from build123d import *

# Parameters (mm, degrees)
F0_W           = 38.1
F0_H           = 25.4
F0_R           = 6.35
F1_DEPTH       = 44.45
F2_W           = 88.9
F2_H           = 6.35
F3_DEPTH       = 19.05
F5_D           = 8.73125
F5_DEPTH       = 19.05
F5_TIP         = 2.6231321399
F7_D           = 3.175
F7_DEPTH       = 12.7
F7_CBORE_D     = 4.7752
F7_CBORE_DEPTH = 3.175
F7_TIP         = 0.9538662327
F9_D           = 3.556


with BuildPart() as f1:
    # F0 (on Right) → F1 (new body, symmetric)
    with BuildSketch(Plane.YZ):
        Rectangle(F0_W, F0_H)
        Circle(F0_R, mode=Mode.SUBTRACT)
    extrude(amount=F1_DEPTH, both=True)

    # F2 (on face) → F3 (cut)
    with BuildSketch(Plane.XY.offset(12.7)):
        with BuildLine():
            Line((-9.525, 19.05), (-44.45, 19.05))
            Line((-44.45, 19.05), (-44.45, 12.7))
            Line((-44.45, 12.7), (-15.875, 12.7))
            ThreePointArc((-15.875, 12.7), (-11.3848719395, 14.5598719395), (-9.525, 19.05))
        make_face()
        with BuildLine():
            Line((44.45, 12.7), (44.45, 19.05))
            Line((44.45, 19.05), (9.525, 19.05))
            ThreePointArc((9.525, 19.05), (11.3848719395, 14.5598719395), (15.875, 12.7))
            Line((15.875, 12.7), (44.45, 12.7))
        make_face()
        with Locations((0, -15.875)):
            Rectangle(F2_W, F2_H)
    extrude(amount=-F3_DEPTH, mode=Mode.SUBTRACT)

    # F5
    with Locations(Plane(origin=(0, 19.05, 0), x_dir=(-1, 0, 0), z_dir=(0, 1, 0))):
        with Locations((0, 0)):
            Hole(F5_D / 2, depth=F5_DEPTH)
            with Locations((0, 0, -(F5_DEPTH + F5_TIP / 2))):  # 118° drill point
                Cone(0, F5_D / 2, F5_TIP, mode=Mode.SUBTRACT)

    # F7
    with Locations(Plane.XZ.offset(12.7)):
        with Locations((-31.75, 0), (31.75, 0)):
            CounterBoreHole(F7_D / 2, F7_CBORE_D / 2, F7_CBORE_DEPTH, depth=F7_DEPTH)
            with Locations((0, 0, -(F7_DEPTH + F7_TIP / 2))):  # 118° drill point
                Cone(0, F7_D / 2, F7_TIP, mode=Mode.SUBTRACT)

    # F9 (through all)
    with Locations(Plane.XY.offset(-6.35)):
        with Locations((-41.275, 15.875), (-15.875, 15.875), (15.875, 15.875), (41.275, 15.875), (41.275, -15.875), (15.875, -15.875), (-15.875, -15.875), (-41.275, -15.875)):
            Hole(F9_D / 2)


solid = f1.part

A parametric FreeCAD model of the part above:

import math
import FreeCAD as App
import Part
import Sketcher
from FreeCAD import Vector
Q = App.Units.Quantity


def add_polygon(sketch, points):
    """Adds a closed chain of lines whose ends are joined by coincident constraints."""
    first, n = sketch.GeometryCount, len(points)
    for a, b in zip(points, points[1:] + points[:1]):
        sketch.addGeometry(Part.LineSegment(App.Vector(*a, 0), App.Vector(*b, 0)), False)
    for i in range(n):
        sketch.addConstraint(Sketcher.Constraint("Coincident", first + i, 2, first + (i + 1) % n, 1))

doc = App.newDocument("Part")
body = doc.addObject("PartDesign::Body", "Body")

# Sketch on YZ plane
sketch1 = doc.addObject("Sketcher::SketchObject", "Sketch")
body.addObject(sketch1)
sketch1.AttachmentSupport = (doc.YZ_Plane, [""])
sketch1.MapMode = "FlatFace"
add_polygon(sketch1, [(-19.05, 12.7), (-19.05, -12.7), (19.05, -12.7), (19.05, 12.7)])  # lines 0-3
sketch1.addGeometry(Part.Circle(Vector(0, 0, 0), Vector(0, 0, 1), 6.35), False)  # 4
sketch1.addConstraint(Sketcher.Constraint("Vertical", 0))
sketch1.addConstraint(Sketcher.Constraint("Horizontal", 1))
sketch1.addConstraint(Sketcher.Constraint("Vertical", 2))
sketch1.addConstraint(Sketcher.Constraint("Horizontal", 3))
sketch1.addConstraint(Sketcher.Constraint("Coincident", 4, 3, -1, 1))
sketch1.addConstraint(Sketcher.Constraint("Symmetric", 0, 2, 2, 2, -1, 1))
sketch1.addConstraint(Sketcher.Constraint("Diameter", 4, Q("0.5 in")))
sketch1.addConstraint(Sketcher.Constraint("DistanceY", 0, 2, 0, 1, Q("1 in")))
sketch1.addConstraint(Sketcher.Constraint("DistanceX", 1, 1, 1, 2, Q("1.5 in")))
pad1 = doc.addObject("PartDesign::Pad", "Pad")
body.addObject(pad1)
pad1.Profile = sketch1
pad1.Length = Q("3.5 in")
pad1.Midplane = True

# Sketch on XY plane
sketch2 = doc.addObject("Sketcher::SketchObject", "Sketch001")
body.addObject(sketch2)
sketch2.AttachmentSupport = (doc.XY_Plane, [""])
sketch2.MapMode = "FlatFace"
sketch2.AttachmentOffset = App.Placement(Vector(0, 0, 0.5 * 25.4), App.Rotation())
sketch2.addGeometry(Part.LineSegment(Vector(-9.525, 19.05, 0), Vector(-44.45, 19.05, 0)), False)  # 0
sketch2.addGeometry(Part.LineSegment(Vector(-44.45, 19.05, 0), Vector(-44.45, 12.7, 0)), False)  # 1
sketch2.addGeometry(Part.LineSegment(Vector(-44.45, 12.7, 0), Vector(-15.875, 12.7, 0)), False)  # 2
sketch2.addGeometry(Part.ArcOfCircle(Part.Circle(Vector(-15.875, 19.05, 0), Vector(0, 0, 1), 6.35), math.radians(-90), math.radians(0)), False)  # 3
sketch2.addGeometry(Part.LineSegment(Vector(44.45, 12.7, 0), Vector(44.45, 19.05, 0)), False)  # 4
sketch2.addGeometry(Part.LineSegment(Vector(44.45, 19.05, 0), Vector(9.525, 19.05, 0)), False)  # 5
sketch2.addGeometry(Part.ArcOfCircle(Part.Circle(Vector(15.875, 19.05, 0), Vector(0, 0, 1), 6.35), math.radians(180), math.radians(270)), False)  # 6
sketch2.addGeometry(Part.LineSegment(Vector(15.875, 12.7, 0), Vector(44.45, 12.7, 0)), False)  # 7
add_polygon(sketch2, [(-44.45, -12.7), (-44.45, -19.05), (44.45, -19.05), (44.45, -12.7)])  # lines 8-11
sketch2.addConstraint(Sketcher.Constraint("Coincident", 0, 2, 1, 1))
sketch2.addConstraint(Sketcher.Constraint("Coincident", 1, 2, 2, 1))
sketch2.addConstraint(Sketcher.Constraint("Tangent", 2, 2, 3, 1))
sketch2.addConstraint(Sketcher.Constraint("Coincident", 3, 2, 0, 1))
sketch2.addConstraint(Sketcher.Constraint("Coincident", 4, 2, 5, 1))
sketch2.addConstraint(Sketcher.Constraint("Coincident", 5, 2, 6, 1))
sketch2.addConstraint(Sketcher.Constraint("Tangent", 6, 2, 7, 1))
sketch2.addConstraint(Sketcher.Constraint("Coincident", 7, 2, 4, 1))
sketch2.addConstraint(Sketcher.Constraint("Horizontal", 0))
sketch2.addConstraint(Sketcher.Constraint("Vertical", 1))
sketch2.addConstraint(Sketcher.Constraint("Horizontal", 2))
sketch2.addConstraint(Sketcher.Constraint("Vertical", 4))
sketch2.addConstraint(Sketcher.Constraint("Horizontal", 5))
sketch2.addConstraint(Sketcher.Constraint("Horizontal", 7))
sketch2.addConstraint(Sketcher.Constraint("Vertical", 8))
sketch2.addConstraint(Sketcher.Constraint("Horizontal", 9))
sketch2.addConstraint(Sketcher.Constraint("Vertical", 10))
sketch2.addConstraint(Sketcher.Constraint("Horizontal", 11))
sketch2.addConstraint(Sketcher.Constraint("Equal", 3, 6))
sketch2.addConstraint(Sketcher.Constraint("Symmetric", 4, 2, 8, 2, -1, 1))
sketch2.addConstraint(Sketcher.Constraint("Symmetric", 0, 2, 9, 2, -1, 1))
sketch2.addConstraint(Sketcher.Constraint("Symmetric", 3, 3, 6, 3, -2))
sketch2.addConstraint(Sketcher.Constraint("Symmetric", 7, 2, 10, 2, -1))
sketch2.addConstraint(Sketcher.Constraint("Horizontal", 6, 3, 0, 2))
sketch2.addConstraint(Sketcher.Constraint("Radius", 3, Q("0.25 in")))
sketch2.addConstraint(Sketcher.Constraint("DistanceX", 9, 1, 9, 2, Q("3.5 in")))
sketch2.addConstraint(Sketcher.Constraint("DistanceX", 3, 2, 6, 3, Q("1 in")))
sketch2.addConstraint(Sketcher.Constraint("DistanceY", 10, 2, 7, 2, Q("1 in")))
pocket1 = doc.addObject("PartDesign::Pocket", "Pocket")
body.addObject(pocket1)
pocket1.Profile = sketch2
pocket1.Length = Q("0.75 in")

# Sketch on XZ plane
sketch3 = doc.addObject("Sketcher::SketchObject", "Sketch002")
body.addObject(sketch3)
sketch3.AttachmentSupport = (doc.XZ_Plane, [""])
sketch3.MapMode = "FlatFace"
sketch3.AttachmentOffset = App.Placement(Vector(0, 0, -0.75 * 25.4), App.Rotation())
sketch3.addGeometry(Part.Circle(Vector(0, 0, 0), Vector(0, 0, 1), 4.365625), False)
sketch3.addConstraint(Sketcher.Constraint("Coincident", 0, 3, -1, 1))
sketch3.addConstraint(Sketcher.Constraint("Diameter", 0, Q("0.34375 in")))
doc.recompute()
hole = doc.addObject("PartDesign::Hole", "Hole")
body.addObject(hole)
hole.Profile = sketch3
hole.ThreadType = "None"
hole.Diameter = Q("0.34375 in")
hole.DepthType = "Dimension"
hole.Depth = Q("0.75 in")
hole.DrillPoint = "Angled"
hole.DrillPointAngle = 118
hole.Reversed = True

# Sketch on XZ plane
sketch4 = doc.addObject("Sketcher::SketchObject", "Sketch003")
body.addObject(sketch4)
sketch4.AttachmentSupport = (doc.XZ_Plane, [""])
sketch4.MapMode = "FlatFace"
sketch4.AttachmentOffset = App.Placement(Vector(0, 0, 0.5 * 25.4), App.Rotation())
sketch4.addGeometry(Part.Circle(Vector(-31.75, 0, 0), Vector(0, 0, 1), 1.5875), False)
sketch4.addGeometry(Part.Circle(Vector(31.75, 0, 0), Vector(0, 0, 1), 1.5875), False)
sketch4.addConstraint(Sketcher.Constraint("Equal", 0, 1))
sketch4.addConstraint(Sketcher.Constraint("Symmetric", 0, 3, 1, 3, -1, 1))
sketch4.addConstraint(Sketcher.Constraint("PointOnObject", 0, 3, -1))
sketch4.addConstraint(Sketcher.Constraint("Diameter", 0, Q("0.125 in")))
sketch4.addConstraint(Sketcher.Constraint("DistanceX", 0, 3, 1, 3, Q("2.5 in")))
doc.recompute()
hole2 = doc.addObject("PartDesign::Hole", "Hole001")
body.addObject(hole2)
hole2.Profile = sketch4
hole2.ThreadType = "None"
hole2.Diameter = Q("0.125 in")
hole2.DepthType = "Dimension"
hole2.Depth = Q("0.5 in")
hole2.DrillPoint = "Angled"
hole2.DrillPointAngle = 118
hole2.HoleCutType = "Counterbore"
hole2.HoleCutDiameter = Q("0.188 in")
hole2.HoleCutDepth = Q("0.125 in")

# Sketch on XY plane
sketch5 = doc.addObject("Sketcher::SketchObject", "Sketch004")
body.addObject(sketch5)
sketch5.AttachmentSupport = (doc.XY_Plane, [""])
sketch5.MapMode = "FlatFace"
sketch5.AttachmentOffset = App.Placement(Vector(0, 0, -0.25 * 25.4), App.Rotation())
sketch5.addGeometry(Part.Circle(Vector(-41.275, 15.875, 0), Vector(0, 0, 1), 1.778), False)
sketch5.addGeometry(Part.Circle(Vector(-15.875, 15.875, 0), Vector(0, 0, 1), 1.778), False)
sketch5.addGeometry(Part.Circle(Vector(15.875, 15.875, 0), Vector(0, 0, 1), 1.778), False)
sketch5.addGeometry(Part.Circle(Vector(41.275, 15.875, 0), Vector(0, 0, 1), 1.778), False)
sketch5.addGeometry(Part.Circle(Vector(41.275, -15.875, 0), Vector(0, 0, 1), 1.778), False)
sketch5.addGeometry(Part.Circle(Vector(15.875, -15.875, 0), Vector(0, 0, 1), 1.778), False)
sketch5.addGeometry(Part.Circle(Vector(-15.875, -15.875, 0), Vector(0, 0, 1), 1.778), False)
sketch5.addGeometry(Part.Circle(Vector(-41.275, -15.875, 0), Vector(0, 0, 1), 1.778), False)
sketch5.addConstraint(Sketcher.Constraint("Equal", 0, 1))
sketch5.addConstraint(Sketcher.Constraint("Equal", 1, 2))
sketch5.addConstraint(Sketcher.Constraint("Equal", 2, 3))
sketch5.addConstraint(Sketcher.Constraint("Equal", 3, 4))
sketch5.addConstraint(Sketcher.Constraint("Equal", 4, 5))
sketch5.addConstraint(Sketcher.Constraint("Equal", 5, 6))
sketch5.addConstraint(Sketcher.Constraint("Equal", 6, 7))
sketch5.addConstraint(Sketcher.Constraint("Symmetric", 0, 3, 4, 3, -1, 1))
sketch5.addConstraint(Sketcher.Constraint("Symmetric", 1, 3, 5, 3, -1, 1))
sketch5.addConstraint(Sketcher.Constraint("Symmetric", 2, 3, 6, 3, -1, 1))
sketch5.addConstraint(Sketcher.Constraint("Symmetric", 3, 3, 7, 3, -1, 1))
sketch5.addConstraint(Sketcher.Constraint("Symmetric", 1, 3, 2, 3, -2))
sketch5.addConstraint(Sketcher.Constraint("Symmetric", 0, 3, 3, 3, -2))
sketch5.addConstraint(Sketcher.Constraint("Horizontal", 0, 3, 1, 3))
sketch5.addConstraint(Sketcher.Constraint("Diameter", 0, Q("0.14 in")))
sketch5.addConstraint(Sketcher.Constraint("DistanceX", 0, 3, 1, 3, Q("1 in")))
sketch5.addConstraint(Sketcher.Constraint("DistanceX", 1, 3, 2, 3, Q("1.25 in")))
sketch5.addConstraint(Sketcher.Constraint("DistanceY", 4, 3, 3, 3, Q("1.25 in")))
doc.recompute()
hole3 = doc.addObject("PartDesign::Hole", "Hole002")
body.addObject(hole3)
hole3.Profile = sketch5
hole3.ThreadType = "None"
hole3.Diameter = Q("0.14 in")
hole3.DepthType = "ThroughAll"

doc.recompute()
